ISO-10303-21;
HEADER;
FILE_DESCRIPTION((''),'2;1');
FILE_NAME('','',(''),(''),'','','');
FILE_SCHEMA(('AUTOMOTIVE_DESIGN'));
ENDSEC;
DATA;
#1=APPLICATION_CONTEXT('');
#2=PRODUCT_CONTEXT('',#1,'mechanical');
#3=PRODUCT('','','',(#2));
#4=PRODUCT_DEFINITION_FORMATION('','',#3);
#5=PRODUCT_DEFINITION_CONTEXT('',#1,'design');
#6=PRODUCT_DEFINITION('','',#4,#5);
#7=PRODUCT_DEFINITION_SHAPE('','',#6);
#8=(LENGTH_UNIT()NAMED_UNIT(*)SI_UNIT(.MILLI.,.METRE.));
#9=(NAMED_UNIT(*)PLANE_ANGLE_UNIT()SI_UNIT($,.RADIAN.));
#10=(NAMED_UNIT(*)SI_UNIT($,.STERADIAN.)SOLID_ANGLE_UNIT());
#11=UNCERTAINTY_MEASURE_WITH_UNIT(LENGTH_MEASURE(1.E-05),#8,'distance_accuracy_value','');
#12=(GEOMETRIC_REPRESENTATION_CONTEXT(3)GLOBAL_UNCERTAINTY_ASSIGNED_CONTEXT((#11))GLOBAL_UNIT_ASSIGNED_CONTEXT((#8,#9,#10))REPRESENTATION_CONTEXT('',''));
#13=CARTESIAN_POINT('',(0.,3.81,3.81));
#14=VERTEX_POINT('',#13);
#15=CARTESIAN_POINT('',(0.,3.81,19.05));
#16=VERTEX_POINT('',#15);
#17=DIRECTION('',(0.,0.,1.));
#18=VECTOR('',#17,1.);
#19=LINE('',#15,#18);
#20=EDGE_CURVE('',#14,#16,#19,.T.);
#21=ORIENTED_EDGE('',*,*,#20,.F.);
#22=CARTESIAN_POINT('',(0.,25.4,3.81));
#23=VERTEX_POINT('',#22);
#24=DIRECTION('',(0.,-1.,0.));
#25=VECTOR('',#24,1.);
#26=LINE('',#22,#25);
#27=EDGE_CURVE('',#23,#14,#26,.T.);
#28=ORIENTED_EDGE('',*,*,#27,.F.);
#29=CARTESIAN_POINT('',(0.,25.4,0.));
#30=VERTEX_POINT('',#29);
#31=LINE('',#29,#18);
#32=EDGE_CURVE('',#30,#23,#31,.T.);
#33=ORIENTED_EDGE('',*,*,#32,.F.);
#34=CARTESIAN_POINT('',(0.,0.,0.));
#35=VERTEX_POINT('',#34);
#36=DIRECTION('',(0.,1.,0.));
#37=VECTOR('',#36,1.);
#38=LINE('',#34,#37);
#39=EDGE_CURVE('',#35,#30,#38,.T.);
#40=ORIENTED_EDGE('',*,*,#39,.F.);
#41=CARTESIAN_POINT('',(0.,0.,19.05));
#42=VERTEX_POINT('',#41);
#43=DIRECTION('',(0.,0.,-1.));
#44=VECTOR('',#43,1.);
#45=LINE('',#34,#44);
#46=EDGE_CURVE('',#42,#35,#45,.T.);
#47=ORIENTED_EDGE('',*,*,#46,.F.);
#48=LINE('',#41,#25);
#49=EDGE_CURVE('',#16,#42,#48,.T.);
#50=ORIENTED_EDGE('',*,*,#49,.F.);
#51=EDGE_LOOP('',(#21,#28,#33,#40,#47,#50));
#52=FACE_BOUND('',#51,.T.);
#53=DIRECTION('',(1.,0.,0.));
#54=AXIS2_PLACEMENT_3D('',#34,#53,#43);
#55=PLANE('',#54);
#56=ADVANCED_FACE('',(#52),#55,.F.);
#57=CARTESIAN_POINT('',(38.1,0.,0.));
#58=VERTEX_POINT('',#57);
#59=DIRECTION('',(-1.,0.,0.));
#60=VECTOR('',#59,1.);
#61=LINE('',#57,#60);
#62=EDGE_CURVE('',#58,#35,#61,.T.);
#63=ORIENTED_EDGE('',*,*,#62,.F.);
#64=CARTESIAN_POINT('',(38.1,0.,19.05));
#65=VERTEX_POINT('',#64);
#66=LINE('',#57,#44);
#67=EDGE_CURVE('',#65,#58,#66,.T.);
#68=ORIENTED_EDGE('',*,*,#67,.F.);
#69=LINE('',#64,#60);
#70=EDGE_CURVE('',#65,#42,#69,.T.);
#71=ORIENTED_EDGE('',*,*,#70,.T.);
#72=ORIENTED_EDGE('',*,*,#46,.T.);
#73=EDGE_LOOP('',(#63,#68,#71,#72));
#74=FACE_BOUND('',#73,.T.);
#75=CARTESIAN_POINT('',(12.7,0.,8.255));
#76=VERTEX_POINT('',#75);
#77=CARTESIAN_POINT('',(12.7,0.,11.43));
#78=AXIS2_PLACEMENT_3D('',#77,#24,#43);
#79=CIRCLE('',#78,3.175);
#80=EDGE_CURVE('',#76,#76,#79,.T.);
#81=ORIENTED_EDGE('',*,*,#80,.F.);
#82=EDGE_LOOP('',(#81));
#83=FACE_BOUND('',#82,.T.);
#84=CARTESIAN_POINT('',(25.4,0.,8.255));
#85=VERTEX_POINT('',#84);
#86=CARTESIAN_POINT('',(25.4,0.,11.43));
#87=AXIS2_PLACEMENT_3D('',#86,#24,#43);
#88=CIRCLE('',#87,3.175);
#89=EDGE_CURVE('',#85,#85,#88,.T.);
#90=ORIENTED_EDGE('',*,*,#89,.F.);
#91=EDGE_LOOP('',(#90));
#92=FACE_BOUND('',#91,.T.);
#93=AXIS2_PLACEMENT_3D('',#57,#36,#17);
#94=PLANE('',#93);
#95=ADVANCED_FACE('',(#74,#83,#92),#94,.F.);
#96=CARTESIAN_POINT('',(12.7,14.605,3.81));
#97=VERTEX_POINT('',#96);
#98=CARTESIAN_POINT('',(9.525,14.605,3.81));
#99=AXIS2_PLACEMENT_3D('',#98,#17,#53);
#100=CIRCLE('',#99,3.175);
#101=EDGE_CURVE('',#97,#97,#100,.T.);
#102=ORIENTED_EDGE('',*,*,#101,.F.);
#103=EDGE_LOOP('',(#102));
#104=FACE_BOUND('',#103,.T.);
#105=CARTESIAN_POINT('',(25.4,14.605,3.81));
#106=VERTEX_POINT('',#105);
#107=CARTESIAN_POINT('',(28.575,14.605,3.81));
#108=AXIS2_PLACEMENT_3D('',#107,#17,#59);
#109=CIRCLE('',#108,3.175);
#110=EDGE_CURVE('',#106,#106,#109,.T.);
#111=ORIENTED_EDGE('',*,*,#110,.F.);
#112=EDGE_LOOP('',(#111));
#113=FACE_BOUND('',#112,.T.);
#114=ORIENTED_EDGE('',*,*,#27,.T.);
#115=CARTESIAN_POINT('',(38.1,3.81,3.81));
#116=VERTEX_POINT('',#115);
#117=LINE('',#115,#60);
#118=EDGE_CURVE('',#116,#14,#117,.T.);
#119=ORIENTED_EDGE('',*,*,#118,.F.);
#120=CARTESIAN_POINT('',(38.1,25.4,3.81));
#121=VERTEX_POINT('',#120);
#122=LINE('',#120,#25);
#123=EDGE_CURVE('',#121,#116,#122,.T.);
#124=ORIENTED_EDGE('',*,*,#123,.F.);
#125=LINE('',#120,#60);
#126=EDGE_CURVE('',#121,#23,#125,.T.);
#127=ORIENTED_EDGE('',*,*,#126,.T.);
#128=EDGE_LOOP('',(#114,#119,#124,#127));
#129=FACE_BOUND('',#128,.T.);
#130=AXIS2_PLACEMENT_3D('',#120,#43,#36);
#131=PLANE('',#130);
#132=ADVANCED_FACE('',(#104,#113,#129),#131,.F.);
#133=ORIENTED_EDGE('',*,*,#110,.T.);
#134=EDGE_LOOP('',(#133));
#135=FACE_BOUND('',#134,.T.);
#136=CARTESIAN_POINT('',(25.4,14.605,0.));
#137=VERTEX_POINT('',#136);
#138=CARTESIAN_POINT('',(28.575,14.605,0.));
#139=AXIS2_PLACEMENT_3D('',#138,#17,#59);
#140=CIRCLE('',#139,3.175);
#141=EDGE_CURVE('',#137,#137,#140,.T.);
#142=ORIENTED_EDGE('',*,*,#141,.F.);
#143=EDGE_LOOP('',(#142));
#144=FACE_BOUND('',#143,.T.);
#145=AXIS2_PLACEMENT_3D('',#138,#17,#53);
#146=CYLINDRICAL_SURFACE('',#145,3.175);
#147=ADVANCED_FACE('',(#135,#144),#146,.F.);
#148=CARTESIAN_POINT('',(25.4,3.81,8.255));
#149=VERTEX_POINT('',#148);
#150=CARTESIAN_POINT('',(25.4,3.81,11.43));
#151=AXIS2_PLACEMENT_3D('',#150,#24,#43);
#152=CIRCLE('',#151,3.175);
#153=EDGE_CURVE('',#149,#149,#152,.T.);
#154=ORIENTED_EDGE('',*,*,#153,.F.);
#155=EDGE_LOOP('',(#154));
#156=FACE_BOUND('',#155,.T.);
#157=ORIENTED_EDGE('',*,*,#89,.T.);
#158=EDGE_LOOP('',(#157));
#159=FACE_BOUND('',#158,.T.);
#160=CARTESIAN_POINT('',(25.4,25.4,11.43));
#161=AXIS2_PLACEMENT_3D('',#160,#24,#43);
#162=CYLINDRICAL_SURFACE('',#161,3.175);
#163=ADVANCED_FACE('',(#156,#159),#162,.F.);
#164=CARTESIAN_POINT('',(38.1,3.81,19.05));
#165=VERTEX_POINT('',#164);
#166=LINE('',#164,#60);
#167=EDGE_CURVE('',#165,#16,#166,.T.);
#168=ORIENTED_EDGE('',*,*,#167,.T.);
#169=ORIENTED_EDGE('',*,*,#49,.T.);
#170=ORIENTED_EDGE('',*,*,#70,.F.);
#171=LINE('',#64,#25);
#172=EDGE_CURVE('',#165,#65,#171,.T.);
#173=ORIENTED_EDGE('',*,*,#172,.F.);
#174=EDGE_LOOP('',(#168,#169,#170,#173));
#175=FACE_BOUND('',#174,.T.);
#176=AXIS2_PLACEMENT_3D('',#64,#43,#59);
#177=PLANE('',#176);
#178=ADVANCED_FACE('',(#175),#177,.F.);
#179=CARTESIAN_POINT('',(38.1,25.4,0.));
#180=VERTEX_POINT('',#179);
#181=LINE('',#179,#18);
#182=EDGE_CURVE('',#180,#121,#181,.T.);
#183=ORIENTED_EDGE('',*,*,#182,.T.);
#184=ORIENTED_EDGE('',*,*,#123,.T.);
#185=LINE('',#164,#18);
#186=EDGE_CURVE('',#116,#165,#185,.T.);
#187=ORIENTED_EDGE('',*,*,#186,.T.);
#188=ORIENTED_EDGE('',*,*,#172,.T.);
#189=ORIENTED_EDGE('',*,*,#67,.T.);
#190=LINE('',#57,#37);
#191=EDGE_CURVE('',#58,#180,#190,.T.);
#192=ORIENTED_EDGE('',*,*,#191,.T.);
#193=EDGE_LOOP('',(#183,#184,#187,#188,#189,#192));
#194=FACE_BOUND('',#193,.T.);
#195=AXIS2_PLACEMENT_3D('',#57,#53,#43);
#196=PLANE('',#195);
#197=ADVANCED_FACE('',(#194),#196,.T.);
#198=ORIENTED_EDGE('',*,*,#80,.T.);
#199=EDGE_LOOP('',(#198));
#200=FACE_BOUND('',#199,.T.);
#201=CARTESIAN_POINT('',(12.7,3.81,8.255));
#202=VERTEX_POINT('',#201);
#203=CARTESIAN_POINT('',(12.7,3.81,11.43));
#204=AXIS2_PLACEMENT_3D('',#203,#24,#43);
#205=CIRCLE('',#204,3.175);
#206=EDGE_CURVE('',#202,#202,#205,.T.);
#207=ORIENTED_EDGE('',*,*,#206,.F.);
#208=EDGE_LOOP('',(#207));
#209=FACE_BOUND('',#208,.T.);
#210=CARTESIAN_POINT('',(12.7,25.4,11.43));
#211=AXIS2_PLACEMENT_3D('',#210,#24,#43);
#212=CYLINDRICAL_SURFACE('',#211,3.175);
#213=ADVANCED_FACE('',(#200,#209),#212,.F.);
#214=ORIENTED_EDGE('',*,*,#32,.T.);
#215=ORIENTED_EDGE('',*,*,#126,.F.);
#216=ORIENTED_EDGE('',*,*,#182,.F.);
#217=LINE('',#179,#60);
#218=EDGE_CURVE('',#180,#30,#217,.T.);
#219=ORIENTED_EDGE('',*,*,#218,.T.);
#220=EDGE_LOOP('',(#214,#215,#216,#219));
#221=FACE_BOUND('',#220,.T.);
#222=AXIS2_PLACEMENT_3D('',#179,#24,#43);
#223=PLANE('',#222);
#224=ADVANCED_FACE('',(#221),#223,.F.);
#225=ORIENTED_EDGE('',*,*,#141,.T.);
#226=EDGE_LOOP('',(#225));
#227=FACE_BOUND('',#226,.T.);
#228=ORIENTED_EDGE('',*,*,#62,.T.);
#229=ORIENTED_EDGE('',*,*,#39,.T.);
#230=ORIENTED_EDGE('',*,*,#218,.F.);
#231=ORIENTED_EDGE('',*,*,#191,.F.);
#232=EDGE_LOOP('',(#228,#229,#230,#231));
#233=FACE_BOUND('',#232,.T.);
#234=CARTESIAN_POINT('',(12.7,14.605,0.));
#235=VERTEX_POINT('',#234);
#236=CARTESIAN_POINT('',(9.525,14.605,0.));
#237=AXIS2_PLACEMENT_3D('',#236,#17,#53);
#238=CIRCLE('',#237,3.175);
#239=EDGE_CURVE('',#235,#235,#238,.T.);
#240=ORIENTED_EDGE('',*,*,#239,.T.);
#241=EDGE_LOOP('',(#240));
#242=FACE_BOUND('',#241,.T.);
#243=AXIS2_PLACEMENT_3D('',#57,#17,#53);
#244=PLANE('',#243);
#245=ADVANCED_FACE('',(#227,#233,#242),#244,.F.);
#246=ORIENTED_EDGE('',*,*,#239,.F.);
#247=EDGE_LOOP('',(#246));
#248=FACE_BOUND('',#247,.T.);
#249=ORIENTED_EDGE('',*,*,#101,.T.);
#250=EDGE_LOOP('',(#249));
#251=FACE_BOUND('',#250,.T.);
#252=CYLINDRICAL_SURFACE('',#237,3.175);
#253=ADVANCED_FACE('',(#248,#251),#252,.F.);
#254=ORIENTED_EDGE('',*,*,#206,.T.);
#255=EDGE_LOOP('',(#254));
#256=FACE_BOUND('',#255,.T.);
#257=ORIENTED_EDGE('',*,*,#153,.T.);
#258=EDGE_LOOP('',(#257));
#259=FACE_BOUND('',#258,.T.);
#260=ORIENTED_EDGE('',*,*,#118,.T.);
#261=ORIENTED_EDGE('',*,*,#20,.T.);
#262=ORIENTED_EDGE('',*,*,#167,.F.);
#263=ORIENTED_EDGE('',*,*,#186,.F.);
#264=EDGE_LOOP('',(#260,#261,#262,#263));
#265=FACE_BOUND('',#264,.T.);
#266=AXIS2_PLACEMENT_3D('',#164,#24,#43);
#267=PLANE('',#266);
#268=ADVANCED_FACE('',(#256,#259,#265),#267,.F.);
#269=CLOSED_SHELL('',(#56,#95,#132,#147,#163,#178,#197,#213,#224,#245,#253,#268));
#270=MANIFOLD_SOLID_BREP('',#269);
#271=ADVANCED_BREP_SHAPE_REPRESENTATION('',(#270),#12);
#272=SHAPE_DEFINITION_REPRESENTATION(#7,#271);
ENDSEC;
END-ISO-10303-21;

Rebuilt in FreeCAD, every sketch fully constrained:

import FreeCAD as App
import Part
import Sketcher

V = App.Vector
Q = App.Units.Quantity


def add_polygon(sketch, points):
    """Adds a closed chain of lines whose ends are joined by coincident constraints."""
    first, n = sketch.GeometryCount, len(points)
    for a, b in zip(points, points[1:] + points[:1]):
        sketch.addGeometry(Part.LineSegment(App.Vector(*a, 0), App.Vector(*b, 0)), False)
    for i in range(n):
        sketch.addConstraint(Sketcher.Constraint("Coincident", first + i, 2, first + (i + 1) % n, 1))

doc = App.newDocument("Part")
params = doc.addObject("Spreadsheet::Sheet", "Params")
for row, (alias, value) in enumerate([
    ("sketch1_width", "1 in"),
    ("sketch1_height", "0.6 in"),
    ("sketch1_width2", "0.85 in"),
    ("pad1_length", "1.5 in"),
    ("sketch2_diameter", "0.25 in"),
    ("sketch3_diameter", "0.25 in"),
    ("pocket2_length", "1 in"),
], start=1):
    params.set(f"A{row}", alias)
    params.set(f"B{row}", "=" + value)
    params.setAlias(f"B{row}", alias)

body = doc.addObject("PartDesign::Body", "Body")

# Sketch on YZ plane
sketch1 = body.newObject("Sketcher::SketchObject", "Sketch")
sketch1.AttachmentSupport = (doc.getObject("YZ_Plane"), [""])
sketch1.MapMode = "FlatFace"
add_polygon(sketch1, [(0, 19.1), (0, 0), (25.4, 0), (25.4, 3.8), (3.8, 3.8), (3.8, 19.1)])  # lines 0-5
sketch1.addConstraint(Sketcher.Constraint("Vertical", 0))
sketch1.addConstraint(Sketcher.Constraint("Horizontal", 1))
sketch1.addConstraint(Sketcher.Constraint("Vertical", 2))
sketch1.addConstraint(Sketcher.Constraint("Horizontal", 3))
sketch1.addConstraint(Sketcher.Constraint("Vertical", 4))
sketch1.addConstraint(Sketcher.Constraint("Horizontal", 5))
sketch1.addConstraint(Sketcher.Constraint("Coincident", 0, 2, -1, 1))
sketch1.addConstraint(Sketcher.Constraint("Equal", 5, 2))
sketch1.addConstraint(Sketcher.Constraint("DistanceX", 1, 1, 1, 2, Q("1 in")))
sketch1.addConstraint(Sketcher.Constraint("DistanceY", 4, 1, 4, 2, Q("0.6 in")))
sketch1.addConstraint(Sketcher.Constraint("DistanceX", 3, 2, 3, 1, Q("0.85 in")))
sketch1.setExpression("Constraints[14]", "Params.sketch1_width")
sketch1.setExpression("Constraints[15]", "Params.sketch1_height")
sketch1.setExpression("Constraints[16]", "Params.sketch1_width2")
pad1 = body.newObject("PartDesign::Pad", "Pad")
pad1.Profile = sketch1
pad1.setExpression("Length", "Params.pad1_length")

# Sketch on XY plane
sketch2 = body.newObject("Sketcher::SketchObject", "Sketch001")
sketch2.AttachmentSupport = (doc.getObject("XY_Plane"), [""])
sketch2.MapMode = "FlatFace"
sketch2.AttachmentOffset = App.Placement(V(0, 0, 0.15 * 25.4), App.Rotation())
sketch2.addGeometry(Part.Circle(V(9.5, 14.6, 0), V(0, 0, 1), 3.2), False)
sketch2.addGeometry(Part.Circle(V(28.6, 14.6, 0), V(0, 0, 1), 3.2), False)
sketch2.addConstraint(Sketcher.Constraint("Equal", 0, 1))
sketch2.addConstraint(Sketcher.Constraint("Horizontal", 0, 3, 1, 3))
sketch2.addConstraint(Sketcher.Constraint("Diameter", 0, Q("0.25 in")))
sketch2.addConstraint(Sketcher.Constraint("DistanceX", 0, 3, 1, 3, Q("0.75 in")))
sketch2.addConstraint(Sketcher.Constraint("DistanceX", -1, 1, 0, 3, Q("0.375 in")))
sketch2.addConstraint(Sketcher.Constraint("DistanceY", -1, 1, 0, 3, Q("0.575 in")))
sketch2.setExpression("Constraints[2]", "Params.sketch2_diameter")
pocket1 = body.newObject("PartDesign::Pocket", "Pocket")
pocket1.Profile = sketch2
pocket1.Type = "ThroughAll"

# Sketch on XZ plane
sketch3 = body.newObject("Sketcher::SketchObject", "Sketch002")
sketch3.AttachmentSupport = (doc.getObject("XZ_Plane"), [""])
sketch3.MapMode = "FlatFace"
sketch3.addGeometry(Part.Circle(V(12.7, 11.4, 0), V(0, 0, 1), 3.2), False)
sketch3.addGeometry(Part.Circle(V(25.4, 11.4, 0), V(0, 0, 1), 3.2), False)
sketch3.addConstraint(Sketcher.Constraint("Equal", 0, 1))
sketch3.addConstraint(Sketcher.Constraint("Horizontal", 0, 3, 1, 3))
sketch3.addConstraint(Sketcher.Constraint("Diameter", 0, Q("0.25 in")))
sketch3.addConstraint(Sketcher.Constraint("DistanceX", -1, 1, 1, 3, Q("1 in")))
sketch3.addConstraint(Sketcher.Constraint("DistanceX", -1, 1, 0, 3, Q("0.5 in")))
sketch3.addConstraint(Sketcher.Constraint("DistanceY", -1, 1, 0, 3, Q("0.45 in")))
sketch3.setExpression("Constraints[2]", "Params.sketch3_diameter")
pocket2 = body.newObject("PartDesign::Pocket", "Pocket001")
pocket2.Profile = sketch3
pocket2.setExpression("Length", "Params.pocket2_length")

doc.recompute()
